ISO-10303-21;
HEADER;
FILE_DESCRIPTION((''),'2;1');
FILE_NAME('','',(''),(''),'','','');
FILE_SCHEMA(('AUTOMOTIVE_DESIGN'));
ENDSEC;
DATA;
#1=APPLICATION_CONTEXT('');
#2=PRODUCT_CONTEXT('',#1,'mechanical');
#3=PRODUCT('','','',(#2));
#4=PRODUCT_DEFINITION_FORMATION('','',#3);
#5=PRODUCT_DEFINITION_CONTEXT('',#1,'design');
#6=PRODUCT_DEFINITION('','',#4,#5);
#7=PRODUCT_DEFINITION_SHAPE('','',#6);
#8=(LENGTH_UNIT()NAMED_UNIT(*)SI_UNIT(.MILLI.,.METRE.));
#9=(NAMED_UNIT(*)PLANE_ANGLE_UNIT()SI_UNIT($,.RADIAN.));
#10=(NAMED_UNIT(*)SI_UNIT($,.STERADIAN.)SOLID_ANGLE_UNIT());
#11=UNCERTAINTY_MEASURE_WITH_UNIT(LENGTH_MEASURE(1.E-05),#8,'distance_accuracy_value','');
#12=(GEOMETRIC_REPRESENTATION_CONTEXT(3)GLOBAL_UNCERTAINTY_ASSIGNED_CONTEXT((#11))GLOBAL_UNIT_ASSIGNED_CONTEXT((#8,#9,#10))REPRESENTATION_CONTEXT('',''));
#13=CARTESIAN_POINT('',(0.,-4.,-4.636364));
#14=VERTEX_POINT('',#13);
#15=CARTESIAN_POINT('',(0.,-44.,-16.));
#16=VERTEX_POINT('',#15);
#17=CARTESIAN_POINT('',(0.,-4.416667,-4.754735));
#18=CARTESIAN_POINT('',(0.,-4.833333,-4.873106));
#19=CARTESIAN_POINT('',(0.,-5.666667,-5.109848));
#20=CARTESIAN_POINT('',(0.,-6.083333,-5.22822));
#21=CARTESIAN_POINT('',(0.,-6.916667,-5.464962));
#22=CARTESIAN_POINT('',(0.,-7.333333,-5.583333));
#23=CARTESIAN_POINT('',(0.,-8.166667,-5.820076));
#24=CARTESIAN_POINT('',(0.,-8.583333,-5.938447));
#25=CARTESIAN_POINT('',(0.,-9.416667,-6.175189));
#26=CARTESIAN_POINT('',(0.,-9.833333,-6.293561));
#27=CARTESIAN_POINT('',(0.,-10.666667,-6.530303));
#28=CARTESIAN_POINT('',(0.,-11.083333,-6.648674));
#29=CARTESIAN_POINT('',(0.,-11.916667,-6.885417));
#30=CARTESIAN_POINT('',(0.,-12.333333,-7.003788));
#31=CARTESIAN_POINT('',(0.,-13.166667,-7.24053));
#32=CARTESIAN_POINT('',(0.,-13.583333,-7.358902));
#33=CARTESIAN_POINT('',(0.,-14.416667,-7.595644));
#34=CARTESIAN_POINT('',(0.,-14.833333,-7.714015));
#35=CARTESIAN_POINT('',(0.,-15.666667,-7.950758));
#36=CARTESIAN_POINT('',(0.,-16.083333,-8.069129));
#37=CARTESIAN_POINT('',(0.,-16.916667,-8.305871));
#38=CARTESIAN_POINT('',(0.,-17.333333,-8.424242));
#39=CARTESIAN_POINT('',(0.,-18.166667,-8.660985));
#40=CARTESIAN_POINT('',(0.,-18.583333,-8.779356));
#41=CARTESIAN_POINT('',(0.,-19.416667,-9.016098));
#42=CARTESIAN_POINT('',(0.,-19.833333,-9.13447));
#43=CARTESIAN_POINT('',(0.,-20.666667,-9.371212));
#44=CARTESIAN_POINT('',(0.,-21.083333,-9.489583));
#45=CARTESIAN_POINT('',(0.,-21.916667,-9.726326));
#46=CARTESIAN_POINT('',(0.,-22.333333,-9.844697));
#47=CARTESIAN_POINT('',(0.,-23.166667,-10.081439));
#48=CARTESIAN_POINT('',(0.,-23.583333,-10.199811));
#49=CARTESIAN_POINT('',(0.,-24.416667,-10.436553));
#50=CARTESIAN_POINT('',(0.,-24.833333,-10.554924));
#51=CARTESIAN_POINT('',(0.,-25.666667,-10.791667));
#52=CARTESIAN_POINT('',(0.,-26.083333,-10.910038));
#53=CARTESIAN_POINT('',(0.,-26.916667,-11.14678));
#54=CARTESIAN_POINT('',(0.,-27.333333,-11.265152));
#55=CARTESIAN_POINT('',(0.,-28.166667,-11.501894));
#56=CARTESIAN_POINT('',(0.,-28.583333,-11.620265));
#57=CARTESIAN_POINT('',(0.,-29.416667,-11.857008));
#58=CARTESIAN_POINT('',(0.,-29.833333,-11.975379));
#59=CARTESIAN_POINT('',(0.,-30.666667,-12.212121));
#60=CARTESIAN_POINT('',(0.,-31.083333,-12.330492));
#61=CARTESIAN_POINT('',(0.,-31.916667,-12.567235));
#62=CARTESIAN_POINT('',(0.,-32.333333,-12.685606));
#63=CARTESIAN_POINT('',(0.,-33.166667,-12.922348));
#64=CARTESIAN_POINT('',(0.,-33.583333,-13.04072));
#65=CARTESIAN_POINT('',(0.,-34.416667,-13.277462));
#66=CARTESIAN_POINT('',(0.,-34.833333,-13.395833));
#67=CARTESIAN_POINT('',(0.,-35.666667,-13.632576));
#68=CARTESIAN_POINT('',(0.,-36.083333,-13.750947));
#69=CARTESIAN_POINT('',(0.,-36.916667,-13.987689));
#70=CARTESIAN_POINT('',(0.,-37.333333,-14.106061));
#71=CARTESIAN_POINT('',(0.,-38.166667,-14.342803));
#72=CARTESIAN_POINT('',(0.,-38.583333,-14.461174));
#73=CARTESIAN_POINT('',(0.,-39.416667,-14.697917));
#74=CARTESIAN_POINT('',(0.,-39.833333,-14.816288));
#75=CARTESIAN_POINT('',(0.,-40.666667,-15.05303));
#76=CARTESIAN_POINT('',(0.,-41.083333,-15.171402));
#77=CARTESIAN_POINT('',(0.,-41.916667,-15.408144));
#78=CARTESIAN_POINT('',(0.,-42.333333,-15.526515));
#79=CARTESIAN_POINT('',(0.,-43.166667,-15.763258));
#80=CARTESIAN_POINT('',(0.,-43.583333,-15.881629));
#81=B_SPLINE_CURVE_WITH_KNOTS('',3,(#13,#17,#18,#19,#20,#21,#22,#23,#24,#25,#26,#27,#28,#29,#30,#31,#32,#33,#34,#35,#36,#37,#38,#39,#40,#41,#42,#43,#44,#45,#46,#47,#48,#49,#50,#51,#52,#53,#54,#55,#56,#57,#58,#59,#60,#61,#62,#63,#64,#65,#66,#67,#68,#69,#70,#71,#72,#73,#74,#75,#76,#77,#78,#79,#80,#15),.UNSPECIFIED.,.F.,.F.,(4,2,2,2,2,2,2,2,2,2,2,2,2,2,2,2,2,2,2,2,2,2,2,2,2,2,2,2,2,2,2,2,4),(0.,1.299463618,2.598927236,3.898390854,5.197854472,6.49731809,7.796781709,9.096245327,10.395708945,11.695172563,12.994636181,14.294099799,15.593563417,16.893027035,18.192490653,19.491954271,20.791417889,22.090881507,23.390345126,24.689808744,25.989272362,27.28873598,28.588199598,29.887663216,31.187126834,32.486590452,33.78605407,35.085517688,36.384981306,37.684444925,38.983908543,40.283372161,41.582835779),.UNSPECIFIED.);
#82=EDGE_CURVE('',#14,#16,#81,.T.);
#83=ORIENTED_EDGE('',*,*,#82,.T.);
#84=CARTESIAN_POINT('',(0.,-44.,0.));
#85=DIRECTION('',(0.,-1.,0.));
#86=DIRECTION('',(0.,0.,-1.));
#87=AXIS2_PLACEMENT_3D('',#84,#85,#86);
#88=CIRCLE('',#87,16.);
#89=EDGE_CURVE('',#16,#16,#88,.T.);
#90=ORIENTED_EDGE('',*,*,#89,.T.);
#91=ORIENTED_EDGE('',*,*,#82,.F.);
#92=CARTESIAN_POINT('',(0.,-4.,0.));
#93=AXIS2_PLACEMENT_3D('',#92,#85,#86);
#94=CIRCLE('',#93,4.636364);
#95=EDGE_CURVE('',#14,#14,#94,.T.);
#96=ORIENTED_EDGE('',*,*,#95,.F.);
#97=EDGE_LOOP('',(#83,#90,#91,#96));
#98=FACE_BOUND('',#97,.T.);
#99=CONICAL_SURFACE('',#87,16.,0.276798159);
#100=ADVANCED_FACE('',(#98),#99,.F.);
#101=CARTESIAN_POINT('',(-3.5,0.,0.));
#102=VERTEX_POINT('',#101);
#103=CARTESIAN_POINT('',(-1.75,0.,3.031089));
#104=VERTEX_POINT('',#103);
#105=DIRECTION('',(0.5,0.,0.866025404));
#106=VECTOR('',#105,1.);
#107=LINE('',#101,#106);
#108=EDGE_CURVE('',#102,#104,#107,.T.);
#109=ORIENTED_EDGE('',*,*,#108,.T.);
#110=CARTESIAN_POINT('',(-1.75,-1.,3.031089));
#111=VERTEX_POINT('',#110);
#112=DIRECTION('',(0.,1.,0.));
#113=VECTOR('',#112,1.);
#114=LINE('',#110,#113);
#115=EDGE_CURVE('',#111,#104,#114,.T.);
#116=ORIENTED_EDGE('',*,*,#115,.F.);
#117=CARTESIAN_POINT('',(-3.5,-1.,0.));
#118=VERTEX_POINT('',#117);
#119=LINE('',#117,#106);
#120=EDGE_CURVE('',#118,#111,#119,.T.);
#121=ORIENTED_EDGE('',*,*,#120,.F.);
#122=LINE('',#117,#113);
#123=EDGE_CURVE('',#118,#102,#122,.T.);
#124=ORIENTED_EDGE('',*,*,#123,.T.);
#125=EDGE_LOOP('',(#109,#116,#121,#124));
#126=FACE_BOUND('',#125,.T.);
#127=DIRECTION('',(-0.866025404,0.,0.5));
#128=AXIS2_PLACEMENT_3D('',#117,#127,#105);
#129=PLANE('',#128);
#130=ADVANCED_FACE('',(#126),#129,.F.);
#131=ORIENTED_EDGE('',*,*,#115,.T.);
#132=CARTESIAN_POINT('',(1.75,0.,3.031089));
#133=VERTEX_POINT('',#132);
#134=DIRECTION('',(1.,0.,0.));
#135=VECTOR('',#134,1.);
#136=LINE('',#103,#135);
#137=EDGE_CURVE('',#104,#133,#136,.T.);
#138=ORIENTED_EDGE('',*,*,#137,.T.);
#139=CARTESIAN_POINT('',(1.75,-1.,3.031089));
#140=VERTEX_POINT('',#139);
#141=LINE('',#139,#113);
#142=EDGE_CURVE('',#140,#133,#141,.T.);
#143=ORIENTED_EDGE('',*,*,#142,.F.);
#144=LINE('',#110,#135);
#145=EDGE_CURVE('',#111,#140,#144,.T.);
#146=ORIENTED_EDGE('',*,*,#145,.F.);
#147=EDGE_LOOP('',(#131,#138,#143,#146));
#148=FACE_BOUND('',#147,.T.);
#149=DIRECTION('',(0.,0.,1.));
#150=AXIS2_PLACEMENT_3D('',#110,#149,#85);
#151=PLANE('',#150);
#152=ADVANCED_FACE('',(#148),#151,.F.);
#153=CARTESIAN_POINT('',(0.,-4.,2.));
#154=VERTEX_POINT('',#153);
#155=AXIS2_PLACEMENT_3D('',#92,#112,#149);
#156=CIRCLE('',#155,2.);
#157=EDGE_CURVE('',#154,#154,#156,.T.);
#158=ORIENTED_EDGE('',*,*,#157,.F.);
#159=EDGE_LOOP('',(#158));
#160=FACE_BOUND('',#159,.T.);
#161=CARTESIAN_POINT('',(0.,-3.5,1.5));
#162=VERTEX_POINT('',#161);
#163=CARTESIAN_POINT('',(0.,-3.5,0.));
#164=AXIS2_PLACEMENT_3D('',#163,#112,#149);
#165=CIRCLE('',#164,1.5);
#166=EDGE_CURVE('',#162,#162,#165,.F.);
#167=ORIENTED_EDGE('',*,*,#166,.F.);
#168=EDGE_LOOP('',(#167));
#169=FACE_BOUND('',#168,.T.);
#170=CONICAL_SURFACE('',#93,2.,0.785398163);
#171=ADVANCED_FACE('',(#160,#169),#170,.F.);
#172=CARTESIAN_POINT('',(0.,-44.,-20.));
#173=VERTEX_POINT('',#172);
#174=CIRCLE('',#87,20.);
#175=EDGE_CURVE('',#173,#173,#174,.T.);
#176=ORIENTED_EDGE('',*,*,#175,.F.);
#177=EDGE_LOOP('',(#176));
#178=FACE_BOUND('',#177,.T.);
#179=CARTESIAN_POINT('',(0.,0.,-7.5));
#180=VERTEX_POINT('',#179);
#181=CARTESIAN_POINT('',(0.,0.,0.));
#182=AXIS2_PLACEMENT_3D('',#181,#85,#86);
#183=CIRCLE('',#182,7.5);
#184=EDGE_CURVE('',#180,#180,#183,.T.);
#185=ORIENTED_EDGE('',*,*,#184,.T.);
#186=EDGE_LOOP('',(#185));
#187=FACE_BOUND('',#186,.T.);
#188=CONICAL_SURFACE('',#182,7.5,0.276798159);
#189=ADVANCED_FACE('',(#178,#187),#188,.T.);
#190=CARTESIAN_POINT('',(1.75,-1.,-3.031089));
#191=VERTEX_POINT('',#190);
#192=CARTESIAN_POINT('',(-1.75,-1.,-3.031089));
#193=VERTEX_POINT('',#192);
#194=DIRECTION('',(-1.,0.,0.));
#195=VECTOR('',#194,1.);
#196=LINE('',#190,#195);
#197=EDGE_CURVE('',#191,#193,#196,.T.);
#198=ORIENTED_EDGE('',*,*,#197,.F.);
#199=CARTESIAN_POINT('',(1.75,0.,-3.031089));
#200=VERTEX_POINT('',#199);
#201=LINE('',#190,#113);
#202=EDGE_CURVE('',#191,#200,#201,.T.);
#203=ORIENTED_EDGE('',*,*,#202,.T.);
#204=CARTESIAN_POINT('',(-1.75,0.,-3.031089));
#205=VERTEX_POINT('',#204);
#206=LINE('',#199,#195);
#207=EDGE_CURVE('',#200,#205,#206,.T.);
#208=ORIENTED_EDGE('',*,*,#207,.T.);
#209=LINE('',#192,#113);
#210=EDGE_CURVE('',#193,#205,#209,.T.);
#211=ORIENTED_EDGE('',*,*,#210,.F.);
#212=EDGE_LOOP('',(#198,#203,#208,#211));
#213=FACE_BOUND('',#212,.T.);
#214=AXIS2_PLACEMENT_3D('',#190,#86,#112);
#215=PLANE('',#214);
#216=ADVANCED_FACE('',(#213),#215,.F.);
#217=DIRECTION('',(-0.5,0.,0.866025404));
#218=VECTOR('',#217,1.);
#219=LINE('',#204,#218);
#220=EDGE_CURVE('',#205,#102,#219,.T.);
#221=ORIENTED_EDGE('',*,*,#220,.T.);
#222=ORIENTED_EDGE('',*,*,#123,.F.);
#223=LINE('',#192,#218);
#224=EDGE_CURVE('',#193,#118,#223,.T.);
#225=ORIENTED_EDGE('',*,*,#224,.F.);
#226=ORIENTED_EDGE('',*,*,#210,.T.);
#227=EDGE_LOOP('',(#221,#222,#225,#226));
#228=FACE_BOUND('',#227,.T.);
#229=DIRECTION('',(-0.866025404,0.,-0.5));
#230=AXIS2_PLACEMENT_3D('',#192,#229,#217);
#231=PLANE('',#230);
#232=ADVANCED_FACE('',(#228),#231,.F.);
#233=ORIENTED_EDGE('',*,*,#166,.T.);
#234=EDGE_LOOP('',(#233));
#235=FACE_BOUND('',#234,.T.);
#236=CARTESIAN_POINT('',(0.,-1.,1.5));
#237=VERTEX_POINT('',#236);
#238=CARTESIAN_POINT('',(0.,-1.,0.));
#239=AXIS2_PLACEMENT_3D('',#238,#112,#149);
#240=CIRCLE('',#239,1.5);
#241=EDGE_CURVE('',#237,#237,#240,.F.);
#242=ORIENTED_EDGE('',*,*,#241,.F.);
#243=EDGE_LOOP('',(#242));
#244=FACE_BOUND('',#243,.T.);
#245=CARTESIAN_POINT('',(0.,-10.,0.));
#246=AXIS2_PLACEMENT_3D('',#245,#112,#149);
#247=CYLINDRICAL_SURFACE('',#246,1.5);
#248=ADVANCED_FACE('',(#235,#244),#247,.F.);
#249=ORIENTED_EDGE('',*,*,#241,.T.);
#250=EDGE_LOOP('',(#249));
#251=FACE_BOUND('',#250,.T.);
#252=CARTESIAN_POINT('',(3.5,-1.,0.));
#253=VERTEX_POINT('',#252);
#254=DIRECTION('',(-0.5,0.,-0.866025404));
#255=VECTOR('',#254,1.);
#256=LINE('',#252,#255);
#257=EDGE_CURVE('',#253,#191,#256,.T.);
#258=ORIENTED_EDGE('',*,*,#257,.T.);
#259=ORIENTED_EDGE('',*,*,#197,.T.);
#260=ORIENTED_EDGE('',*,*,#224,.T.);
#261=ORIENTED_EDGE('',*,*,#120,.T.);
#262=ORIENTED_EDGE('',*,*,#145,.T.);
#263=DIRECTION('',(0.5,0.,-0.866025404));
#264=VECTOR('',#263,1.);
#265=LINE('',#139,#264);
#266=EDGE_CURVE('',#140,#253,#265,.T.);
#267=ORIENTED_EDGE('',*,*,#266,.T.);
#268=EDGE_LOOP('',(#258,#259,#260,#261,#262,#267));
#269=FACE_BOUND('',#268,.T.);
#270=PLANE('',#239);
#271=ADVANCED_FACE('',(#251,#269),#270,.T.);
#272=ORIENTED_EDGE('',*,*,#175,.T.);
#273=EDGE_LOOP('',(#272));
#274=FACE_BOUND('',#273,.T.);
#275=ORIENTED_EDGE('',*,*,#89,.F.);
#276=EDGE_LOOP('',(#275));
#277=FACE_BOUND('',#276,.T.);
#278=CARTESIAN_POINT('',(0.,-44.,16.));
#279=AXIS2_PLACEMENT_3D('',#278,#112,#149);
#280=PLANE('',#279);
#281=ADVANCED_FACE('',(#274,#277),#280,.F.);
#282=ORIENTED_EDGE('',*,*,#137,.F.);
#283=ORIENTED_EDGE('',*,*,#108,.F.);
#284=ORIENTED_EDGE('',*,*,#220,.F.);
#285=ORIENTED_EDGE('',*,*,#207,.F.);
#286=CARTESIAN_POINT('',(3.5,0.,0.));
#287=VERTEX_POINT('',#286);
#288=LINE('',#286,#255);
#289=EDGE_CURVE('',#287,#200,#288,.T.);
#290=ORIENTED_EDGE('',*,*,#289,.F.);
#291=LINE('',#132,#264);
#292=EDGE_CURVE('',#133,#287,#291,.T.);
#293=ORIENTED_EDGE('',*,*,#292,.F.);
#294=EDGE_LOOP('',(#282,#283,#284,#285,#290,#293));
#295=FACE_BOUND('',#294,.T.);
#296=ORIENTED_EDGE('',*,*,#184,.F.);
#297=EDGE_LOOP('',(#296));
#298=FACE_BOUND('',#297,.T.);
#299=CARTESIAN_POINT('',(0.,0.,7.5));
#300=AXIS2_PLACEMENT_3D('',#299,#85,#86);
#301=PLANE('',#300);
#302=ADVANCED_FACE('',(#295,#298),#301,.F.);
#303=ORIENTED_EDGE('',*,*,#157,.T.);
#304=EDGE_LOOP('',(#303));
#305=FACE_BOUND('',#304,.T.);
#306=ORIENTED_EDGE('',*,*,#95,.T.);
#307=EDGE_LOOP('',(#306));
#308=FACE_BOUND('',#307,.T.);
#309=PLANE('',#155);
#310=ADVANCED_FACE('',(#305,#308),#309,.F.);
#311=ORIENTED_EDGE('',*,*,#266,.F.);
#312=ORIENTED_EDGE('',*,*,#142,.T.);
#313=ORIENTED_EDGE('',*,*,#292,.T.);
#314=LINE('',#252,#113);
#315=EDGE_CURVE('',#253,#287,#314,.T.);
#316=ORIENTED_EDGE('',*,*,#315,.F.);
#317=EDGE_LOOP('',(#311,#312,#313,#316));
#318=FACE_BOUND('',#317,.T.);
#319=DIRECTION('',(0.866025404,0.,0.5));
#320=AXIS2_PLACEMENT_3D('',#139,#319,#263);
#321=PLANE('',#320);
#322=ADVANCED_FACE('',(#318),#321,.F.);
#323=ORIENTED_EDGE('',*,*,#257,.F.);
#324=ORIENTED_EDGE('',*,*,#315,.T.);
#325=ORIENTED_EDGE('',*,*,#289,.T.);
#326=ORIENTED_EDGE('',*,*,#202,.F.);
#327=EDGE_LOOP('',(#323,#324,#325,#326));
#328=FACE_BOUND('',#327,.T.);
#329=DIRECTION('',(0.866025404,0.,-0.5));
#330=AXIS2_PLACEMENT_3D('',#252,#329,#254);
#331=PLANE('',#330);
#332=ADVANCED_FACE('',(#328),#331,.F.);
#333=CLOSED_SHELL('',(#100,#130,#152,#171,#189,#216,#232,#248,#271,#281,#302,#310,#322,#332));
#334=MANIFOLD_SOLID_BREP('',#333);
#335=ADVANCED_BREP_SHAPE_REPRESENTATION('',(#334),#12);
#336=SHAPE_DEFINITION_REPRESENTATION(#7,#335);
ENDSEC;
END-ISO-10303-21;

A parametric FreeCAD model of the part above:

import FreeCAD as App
import Part
import Sketcher
Q = App.Units.Quantity


def edges_at(feature, points):
    """Names of the edges that pass closest to the given points."""
    edges = feature.Shape.Edges
    near = lambda p: min(range(len(edges)), key=lambda i: edges[i].distToShape(Part.Vertex(*p))[0])
    return sorted({f"Edge{near(p) + 1}" for p in points})


def add_polygon(sketch, points):
    """Adds a closed chain of lines whose ends are joined by coincident constraints."""
    first, n = sketch.GeometryCount, len(points)
    for a, b in zip(points, points[1:] + points[:1]):
        sketch.addGeometry(Part.LineSegment(App.Vector(*a, 0), App.Vector(*b, 0)), False)
    for i in range(n):
        sketch.addConstraint(Sketcher.Constraint("Coincident", first + i, 2, first + (i + 1) % n, 1))

doc = App.newDocument("Part")
params = doc.addObject("Spreadsheet::Sheet", "Params")
for row, (alias, value) in enumerate([
    ("sketch1_width", "4 mm"),
    ("sketch1_height", "7.5 mm"),
    ("revolution_angle", "360 deg"),
    ("sketch2_diameter", "3 mm"),
    ("pocket1_length", "10 mm"),
    ("chamfer_size", "0.5 mm"),
    ("sketch3_width", "3.5 mm"),
    ("pocket2_length", "1 mm"),
], start=1):
    params.set(f"A{row}", alias)
    params.set(f"B{row}", "=" + value)
    params.setAlias(f"B{row}", alias)

body = doc.addObject("PartDesign::Body", "Body")

# Sketch on YZ plane
sketch1 = body.newObject("Sketcher::SketchObject", "Sketch")
sketch1.AttachmentSupport = (doc.getObject("YZ_Plane"), [""])
sketch1.MapMode = "FlatFace"
add_polygon(sketch1, [(0, 0), (0, 7.5), (-44, 20), (-44, 16), (-4, 4.6), (-4, 0)])  # lines 0-5
sketch1.addConstraint(Sketcher.Constraint("Vertical", 0))
sketch1.addConstraint(Sketcher.Constraint("Vertical", 2))
sketch1.addConstraint(Sketcher.Constraint("Vertical", 4))
sketch1.addConstraint(Sketcher.Constraint("Horizontal", 5))
sketch1.addConstraint(Sketcher.Constraint("Coincident", 5, 2, -1, 1))
sketch1.addConstraint(Sketcher.Constraint("Parallel", 1, 3))
sketch1.addConstraint(Sketcher.Constraint("Equal", 5, 2))
sketch1.addConstraint(Sketcher.Constraint("DistanceX", 5, 1, 5, 2, 4.0))
sketch1.addConstraint(Sketcher.Constraint("DistanceY", 0, 1, 0, 2, 7.5))
sketch1.addConstraint(Sketcher.Constraint("DistanceX", 1, 2, -1, 1, 44.0))
sketch1.addConstraint(Sketcher.Constraint("DistanceY", -1, 1, 1, 2, 20.0))
sketch1.setExpression("Constraints[13]", "Params.sketch1_width")
sketch1.setExpression("Constraints[14]", "Params.sketch1_height")
revolution = body.newObject("PartDesign::Revolution", "Revolution")
revolution.Profile = sketch1
revolution.ReferenceAxis = (sketch1, ["H_Axis"])
revolution.setExpression("Angle", "Params.revolution_angle")

# Sketch on XZ plane
sketch2 = body.newObject("Sketcher::SketchObject", "Sketch001")
sketch2.AttachmentSupport = (doc.getObject("XZ_Plane"), [""])
sketch2.MapMode = "FlatFace"
sketch2.addGeometry(Part.Circle(App.Vector(0, 0, 0), App.Vector(0, 0, 1), 1.5), False)
sketch2.addConstraint(Sketcher.Constraint("Coincident", 0, 3, -1, 1))
sketch2.addConstraint(Sketcher.Constraint("Diameter", 0, 3.0))
sketch2.setExpression("Constraints[1]", "Params.sketch2_diameter")
pocket1 = body.newObject("PartDesign::Pocket", "Pocket")
pocket1.Profile = sketch2
pocket1.setExpression("Length", "Params.pocket1_length")
pocket1.Reversed = True
doc.recompute()

chamfer = body.newObject("PartDesign::Chamfer", "Chamfer")
chamfer.Base = (pocket1, edges_at(pocket1, [(0, -4, -1.5)]))
chamfer.setExpression("Size", "Params.chamfer_size")

# Sketch on XZ plane
sketch3 = body.newObject("Sketcher::SketchObject", "Sketch002")
sketch3.AttachmentSupport = (doc.getObject("XZ_Plane"), [""])
sketch3.MapMode = "FlatFace"
add_polygon(sketch3, [(3.5, 0), (1.8, -3), (-1.8, -3), (-3.5, 0), (-1.8, 3), (1.8, 3)])  # lines 0-5
sketch3.addConstraint(Sketcher.Constraint("Horizontal", 1))
sketch3.addConstraint(Sketcher.Constraint("Horizontal", 4))
sketch3.addConstraint(Sketcher.Constraint("Symmetric", 0, 2, 3, 2, -1, 1))
sketch3.addConstraint(Sketcher.Constraint("Symmetric", 2, 2, 5, 2, -1, 1))
sketch3.addConstraint(Sketcher.Constraint("PointOnObject", 2, 2, -1))
sketch3.addConstraint(Sketcher.Constraint("Parallel", 2, 5))
sketch3.addConstraint(Sketcher.Constraint("Vertical", 1, 2, 3, 2))
sketch3.addConstraint(Sketcher.Constraint("Angle", 0, Q("-120 deg")))
sketch3.addConstraint(Sketcher.Constraint("DistanceX", 1, 2, 1, 1, 3.5))
sketch3.addConstraint(Sketcher.Constraint("DistanceX", 2, 2, 5, 2, 7.0))
sketch3.setExpression("Constraints[14]", "Params.sketch3_width")
pocket2 = body.newObject("PartDesign::Pocket", "Pocket001")
pocket2.Profile = sketch3
pocket2.setExpression("Length", "Params.pocket2_length")
pocket2.Reversed = True

doc.recompute()
